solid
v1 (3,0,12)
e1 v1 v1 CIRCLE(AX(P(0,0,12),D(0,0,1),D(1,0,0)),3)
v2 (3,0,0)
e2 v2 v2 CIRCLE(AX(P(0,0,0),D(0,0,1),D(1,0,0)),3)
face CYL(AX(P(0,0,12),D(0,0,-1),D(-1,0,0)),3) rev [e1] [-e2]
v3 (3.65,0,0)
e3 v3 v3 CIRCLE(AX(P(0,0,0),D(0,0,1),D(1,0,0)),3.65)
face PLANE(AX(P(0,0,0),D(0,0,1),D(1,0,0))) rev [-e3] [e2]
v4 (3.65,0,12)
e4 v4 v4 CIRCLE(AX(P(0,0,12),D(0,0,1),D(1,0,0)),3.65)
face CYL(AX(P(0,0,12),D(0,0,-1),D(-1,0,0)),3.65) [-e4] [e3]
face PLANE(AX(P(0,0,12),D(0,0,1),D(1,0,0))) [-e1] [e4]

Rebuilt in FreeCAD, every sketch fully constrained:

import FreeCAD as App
import Part
import Sketcher

V = App.Vector
Q = App.Units.Quantity

doc = App.newDocument("Part")
body = doc.addObject("PartDesign::Body", "Body")

# Sketch on XY plane
sketch1 = body.newObject("Sketcher::SketchObject", "Sketch")
sketch1.AttachmentSupport = (doc.getObject("XY_Plane"), [""])
sketch1.MapMode = "FlatFace"
sketch1.addGeometry(Part.Circle(V(0, 0, 0), V(0, 0, 1), 3.6), False)
sketch1.addGeometry(Part.Circle(V(0, 0, 0), V(0, 0, 1), 3), False)
sketch1.addConstraint(Sketcher.Constraint("Coincident", 0, 3, -1, 1))
sketch1.addConstraint(Sketcher.Constraint("Coincident", 1, 3, -1, 1))
sketch1.addConstraint(Sketcher.Constraint("Diameter", 1, Q("6 mm")))
sketch1.addConstraint(Sketcher.Constraint("Diameter", 0, Q("7.3 mm")))
pad1 = body.newObject("PartDesign::Pad", "Pad")
pad1.Profile = sketch1
pad1.Length = 12

doc.recompute()
